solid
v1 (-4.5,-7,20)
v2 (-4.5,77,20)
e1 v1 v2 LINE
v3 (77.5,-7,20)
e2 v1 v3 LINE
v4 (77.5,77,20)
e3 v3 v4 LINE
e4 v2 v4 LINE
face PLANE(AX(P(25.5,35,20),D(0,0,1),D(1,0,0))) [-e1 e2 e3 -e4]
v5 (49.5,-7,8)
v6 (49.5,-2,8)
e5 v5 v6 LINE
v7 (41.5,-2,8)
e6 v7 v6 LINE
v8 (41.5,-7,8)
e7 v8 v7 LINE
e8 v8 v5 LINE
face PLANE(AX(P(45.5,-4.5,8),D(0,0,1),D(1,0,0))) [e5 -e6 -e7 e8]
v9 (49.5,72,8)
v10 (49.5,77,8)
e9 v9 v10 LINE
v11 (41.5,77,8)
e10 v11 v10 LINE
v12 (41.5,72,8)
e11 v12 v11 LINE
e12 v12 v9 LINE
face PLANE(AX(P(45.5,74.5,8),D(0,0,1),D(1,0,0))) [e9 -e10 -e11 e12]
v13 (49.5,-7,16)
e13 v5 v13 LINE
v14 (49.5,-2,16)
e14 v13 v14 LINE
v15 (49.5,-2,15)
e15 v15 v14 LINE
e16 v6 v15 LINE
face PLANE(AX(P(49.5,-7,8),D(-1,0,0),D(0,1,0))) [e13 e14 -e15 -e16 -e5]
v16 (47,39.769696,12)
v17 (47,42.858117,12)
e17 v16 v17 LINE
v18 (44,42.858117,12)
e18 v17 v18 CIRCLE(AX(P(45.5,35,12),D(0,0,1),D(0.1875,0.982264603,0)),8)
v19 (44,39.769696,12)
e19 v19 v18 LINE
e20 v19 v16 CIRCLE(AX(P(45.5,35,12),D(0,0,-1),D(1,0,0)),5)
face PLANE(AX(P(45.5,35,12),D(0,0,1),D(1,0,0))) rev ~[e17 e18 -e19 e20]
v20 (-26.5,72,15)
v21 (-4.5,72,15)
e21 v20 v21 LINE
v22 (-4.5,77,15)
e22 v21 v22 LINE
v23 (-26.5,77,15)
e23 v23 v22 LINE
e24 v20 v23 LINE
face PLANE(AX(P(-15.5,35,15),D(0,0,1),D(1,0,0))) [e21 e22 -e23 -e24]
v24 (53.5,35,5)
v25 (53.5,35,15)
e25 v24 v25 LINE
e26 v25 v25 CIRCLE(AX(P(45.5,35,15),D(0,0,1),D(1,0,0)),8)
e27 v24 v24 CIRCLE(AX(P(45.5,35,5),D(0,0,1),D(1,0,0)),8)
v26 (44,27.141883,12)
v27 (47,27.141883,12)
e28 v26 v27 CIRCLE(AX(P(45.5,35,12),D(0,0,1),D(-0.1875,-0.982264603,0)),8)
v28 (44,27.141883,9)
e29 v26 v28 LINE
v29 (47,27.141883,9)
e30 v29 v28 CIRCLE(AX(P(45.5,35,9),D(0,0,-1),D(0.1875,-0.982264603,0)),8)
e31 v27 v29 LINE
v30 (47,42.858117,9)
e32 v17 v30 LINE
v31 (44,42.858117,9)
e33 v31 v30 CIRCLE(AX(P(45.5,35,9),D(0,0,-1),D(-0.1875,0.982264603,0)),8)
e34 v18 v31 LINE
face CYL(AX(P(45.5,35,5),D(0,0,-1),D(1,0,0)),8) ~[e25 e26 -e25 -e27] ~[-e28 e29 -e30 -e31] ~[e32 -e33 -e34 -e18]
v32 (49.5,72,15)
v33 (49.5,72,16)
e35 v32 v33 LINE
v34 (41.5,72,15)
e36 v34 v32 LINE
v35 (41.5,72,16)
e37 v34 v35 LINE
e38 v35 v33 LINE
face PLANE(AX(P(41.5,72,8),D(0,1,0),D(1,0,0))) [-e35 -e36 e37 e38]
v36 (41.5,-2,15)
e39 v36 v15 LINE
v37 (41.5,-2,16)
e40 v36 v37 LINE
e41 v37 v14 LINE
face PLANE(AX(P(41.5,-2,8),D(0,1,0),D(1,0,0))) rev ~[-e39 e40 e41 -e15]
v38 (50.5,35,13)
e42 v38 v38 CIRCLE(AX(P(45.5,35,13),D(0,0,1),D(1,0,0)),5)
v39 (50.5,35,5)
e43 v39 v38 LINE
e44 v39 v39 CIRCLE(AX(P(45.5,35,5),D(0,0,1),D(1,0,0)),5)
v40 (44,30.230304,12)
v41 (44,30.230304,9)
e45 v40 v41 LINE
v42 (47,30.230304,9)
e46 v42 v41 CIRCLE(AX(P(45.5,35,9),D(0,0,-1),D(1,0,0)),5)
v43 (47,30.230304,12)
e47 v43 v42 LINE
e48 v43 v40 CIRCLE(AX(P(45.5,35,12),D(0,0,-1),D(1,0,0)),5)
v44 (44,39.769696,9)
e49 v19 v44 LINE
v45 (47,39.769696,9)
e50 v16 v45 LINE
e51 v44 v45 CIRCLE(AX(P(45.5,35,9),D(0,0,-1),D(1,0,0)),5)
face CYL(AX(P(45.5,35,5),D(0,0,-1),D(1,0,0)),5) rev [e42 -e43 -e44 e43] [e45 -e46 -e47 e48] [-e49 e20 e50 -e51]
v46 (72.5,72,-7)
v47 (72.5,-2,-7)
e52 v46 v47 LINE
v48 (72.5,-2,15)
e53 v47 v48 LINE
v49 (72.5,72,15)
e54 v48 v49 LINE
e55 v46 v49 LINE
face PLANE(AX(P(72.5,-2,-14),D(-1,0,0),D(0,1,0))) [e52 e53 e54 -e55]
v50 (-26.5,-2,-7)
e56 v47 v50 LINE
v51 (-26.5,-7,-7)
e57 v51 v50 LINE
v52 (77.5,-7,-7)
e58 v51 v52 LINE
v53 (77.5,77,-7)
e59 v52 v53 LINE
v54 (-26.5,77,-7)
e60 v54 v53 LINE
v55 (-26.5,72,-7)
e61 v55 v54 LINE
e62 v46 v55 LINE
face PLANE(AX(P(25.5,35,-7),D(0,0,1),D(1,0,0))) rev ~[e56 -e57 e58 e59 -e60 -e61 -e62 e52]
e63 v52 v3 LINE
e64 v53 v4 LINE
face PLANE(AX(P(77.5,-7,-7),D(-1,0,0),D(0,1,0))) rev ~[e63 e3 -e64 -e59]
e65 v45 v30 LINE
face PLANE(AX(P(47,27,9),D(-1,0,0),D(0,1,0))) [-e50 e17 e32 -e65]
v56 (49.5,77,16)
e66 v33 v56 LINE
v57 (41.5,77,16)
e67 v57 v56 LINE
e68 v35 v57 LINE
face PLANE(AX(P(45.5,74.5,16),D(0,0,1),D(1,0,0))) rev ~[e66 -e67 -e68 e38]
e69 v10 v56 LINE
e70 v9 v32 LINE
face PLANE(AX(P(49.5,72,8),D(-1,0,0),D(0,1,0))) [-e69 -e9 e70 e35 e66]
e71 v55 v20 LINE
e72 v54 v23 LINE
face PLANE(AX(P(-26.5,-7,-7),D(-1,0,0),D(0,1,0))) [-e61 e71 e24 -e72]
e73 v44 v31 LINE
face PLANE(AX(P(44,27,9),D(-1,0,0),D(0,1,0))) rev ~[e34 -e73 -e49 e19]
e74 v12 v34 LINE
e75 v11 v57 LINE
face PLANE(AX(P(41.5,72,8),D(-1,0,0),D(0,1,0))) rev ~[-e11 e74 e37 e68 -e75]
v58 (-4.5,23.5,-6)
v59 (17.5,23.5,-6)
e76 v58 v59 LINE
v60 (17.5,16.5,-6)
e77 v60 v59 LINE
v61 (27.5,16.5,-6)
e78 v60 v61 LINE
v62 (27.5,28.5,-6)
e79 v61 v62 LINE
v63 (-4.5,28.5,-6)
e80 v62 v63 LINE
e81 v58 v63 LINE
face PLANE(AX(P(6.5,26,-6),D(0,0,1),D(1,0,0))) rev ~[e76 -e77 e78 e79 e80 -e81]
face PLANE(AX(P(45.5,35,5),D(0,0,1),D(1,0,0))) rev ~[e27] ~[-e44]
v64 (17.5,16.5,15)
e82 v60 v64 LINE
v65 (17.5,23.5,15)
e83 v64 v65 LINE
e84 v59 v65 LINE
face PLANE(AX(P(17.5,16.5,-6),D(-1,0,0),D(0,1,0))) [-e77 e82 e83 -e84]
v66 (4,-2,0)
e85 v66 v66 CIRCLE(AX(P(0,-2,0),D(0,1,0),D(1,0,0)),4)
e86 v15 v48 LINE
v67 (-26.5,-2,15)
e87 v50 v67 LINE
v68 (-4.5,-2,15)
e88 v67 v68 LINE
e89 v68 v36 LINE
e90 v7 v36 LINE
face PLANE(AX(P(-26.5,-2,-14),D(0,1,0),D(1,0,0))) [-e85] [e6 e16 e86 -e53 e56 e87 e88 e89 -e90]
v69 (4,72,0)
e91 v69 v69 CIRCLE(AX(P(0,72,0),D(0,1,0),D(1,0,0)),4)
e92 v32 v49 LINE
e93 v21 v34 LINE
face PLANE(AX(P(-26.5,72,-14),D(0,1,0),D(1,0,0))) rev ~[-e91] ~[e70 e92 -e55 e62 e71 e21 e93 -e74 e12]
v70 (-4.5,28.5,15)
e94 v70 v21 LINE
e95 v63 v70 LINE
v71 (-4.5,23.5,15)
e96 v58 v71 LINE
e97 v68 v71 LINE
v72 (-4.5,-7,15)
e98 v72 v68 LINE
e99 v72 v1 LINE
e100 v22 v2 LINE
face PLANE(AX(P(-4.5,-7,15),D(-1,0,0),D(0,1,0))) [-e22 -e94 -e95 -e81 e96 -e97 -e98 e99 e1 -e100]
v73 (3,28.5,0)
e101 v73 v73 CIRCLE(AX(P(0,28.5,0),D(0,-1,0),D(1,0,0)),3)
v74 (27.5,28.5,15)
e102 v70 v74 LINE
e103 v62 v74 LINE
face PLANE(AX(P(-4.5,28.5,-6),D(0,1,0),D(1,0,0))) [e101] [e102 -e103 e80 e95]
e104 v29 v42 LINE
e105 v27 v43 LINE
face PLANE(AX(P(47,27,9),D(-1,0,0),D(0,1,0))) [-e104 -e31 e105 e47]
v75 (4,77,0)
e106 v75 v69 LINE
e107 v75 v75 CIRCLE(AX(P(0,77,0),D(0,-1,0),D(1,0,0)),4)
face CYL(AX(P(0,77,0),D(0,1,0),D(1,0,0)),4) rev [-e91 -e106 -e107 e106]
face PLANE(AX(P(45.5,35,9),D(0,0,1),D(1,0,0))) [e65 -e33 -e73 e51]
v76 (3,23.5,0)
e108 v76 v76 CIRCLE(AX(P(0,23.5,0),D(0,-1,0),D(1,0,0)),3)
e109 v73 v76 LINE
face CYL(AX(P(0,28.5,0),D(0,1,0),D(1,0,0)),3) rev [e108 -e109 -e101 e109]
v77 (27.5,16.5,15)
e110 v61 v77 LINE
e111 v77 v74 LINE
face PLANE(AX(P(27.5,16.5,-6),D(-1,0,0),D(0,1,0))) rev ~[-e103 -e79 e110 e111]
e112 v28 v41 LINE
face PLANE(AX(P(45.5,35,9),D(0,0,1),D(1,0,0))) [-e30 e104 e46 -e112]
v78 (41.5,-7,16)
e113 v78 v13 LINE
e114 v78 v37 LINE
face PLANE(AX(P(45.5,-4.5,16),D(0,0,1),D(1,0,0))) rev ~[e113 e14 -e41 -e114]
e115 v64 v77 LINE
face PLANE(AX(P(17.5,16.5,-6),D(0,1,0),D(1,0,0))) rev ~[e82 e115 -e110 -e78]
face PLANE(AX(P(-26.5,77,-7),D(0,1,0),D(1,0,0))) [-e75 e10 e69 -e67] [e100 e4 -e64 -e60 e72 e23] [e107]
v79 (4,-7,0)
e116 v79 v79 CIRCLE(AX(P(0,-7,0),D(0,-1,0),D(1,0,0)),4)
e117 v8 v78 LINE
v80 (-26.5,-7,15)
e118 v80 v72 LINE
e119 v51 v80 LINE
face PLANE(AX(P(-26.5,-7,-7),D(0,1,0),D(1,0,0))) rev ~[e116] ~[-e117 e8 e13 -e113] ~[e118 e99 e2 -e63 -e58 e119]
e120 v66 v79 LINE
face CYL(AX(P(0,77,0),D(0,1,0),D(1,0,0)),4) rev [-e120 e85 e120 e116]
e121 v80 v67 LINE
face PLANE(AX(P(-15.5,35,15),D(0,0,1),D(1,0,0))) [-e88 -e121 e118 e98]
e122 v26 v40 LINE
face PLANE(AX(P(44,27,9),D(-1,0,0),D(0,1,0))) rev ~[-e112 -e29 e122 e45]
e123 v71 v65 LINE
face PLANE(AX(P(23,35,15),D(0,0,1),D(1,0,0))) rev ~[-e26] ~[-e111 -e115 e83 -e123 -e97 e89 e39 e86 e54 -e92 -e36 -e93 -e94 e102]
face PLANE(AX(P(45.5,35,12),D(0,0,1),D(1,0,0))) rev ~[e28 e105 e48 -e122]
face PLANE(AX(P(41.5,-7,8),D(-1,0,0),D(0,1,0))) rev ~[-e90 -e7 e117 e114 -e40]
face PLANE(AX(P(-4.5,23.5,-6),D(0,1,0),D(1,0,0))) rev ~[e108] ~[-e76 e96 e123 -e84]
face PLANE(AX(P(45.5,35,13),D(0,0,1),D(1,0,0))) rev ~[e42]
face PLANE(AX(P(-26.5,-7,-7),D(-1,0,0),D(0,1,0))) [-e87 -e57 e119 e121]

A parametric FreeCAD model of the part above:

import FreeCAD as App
import Part
import Sketcher
from FreeCAD import Vector


def add_polygon(sketch, points):
    """Adds a closed chain of lines whose ends are joined by coincident constraints."""
    first, n = sketch.GeometryCount, len(points)
    for a, b in zip(points, points[1:] + points[:1]):
        sketch.addGeometry(Part.LineSegment(App.Vector(*a, 0), App.Vector(*b, 0)), False)
    for i in range(n):
        sketch.addConstraint(Sketcher.Constraint("Coincident", first + i, 2, first + (i + 1) % n, 1))

doc = App.newDocument("Part")
params = doc.addObject("Spreadsheet::Sheet", "Params")
for row, (alias, value) in enumerate([
    ("sketch1_diameter", "6 mm"),
    ("pad1_length", "5 mm"),
    ("sketch2_width", "22 mm"),
    ("sketch2_height", "5 mm"),
    ("pad2_length", "21 mm"),
    ("sketch3_width", "10 mm"),
    ("sketch3_height", "12 mm"),
    ("pad3_length", "21 mm"),
    ("sketch4_diameter", "10 mm"),
    ("pad4_length", "8 mm"),
    ("sketch5_width", "3 mm"),
    ("sketch5_height", "16 mm"),
    ("pad5_length", "3 mm"),
    ("sketch6_diameter", "16 mm"),
    ("pad6_length", "10 mm"),
    ("sketch7_diameter", "8 mm"),
    ("pad7_length", "84 mm"),
    ("sketch8_width", "8 mm"),
    ("sketch8_height", "5 mm"),
    ("pad8_length", "8 mm"),
    ("sketch9_width", "8 mm"),
    ("sketch9_height", "5 mm"),
    ("pad9_length", "8 mm"),
    ("sketch10_width", "22 mm"),
    ("sketch10_height", "84 mm"),
    ("pad10_length", "5 mm"),
    ("sketch11_width", "99 mm"),
    ("sketch11_height", "74 mm"),
    ("pad11_length", "29 mm"),
    ("sketch12_width", "104 mm"),
    ("sketch12_height", "84 mm"),
    ("pad12_length", "27 mm"),
], start=1):
    params.set(f"A{row}", alias)
    params.set(f"B{row}", "=" + value)
    params.setAlias(f"B{row}", alias)

body = doc.addObject("PartDesign::Body", "Body")

sketch1 = body.newObject("Sketcher::SketchObject", "Sketch")
sketch1.AttachmentSupport = (doc.getObject("XZ_Plane"), [""])
sketch1.MapMode = "FlatFace"
sketch1.AttachmentOffset = App.Placement(Vector(0, 0, -28.5), App.Rotation())
sketch1.addGeometry(Part.Circle(Vector(19.5, 14, 0), Vector(0, 0, 1), 3), False)
sketch1.addConstraint([
    Sketcher.Constraint("Diameter", 0, 6.0),
    Sketcher.Constraint("DistanceY", -1, 1, 0, 3, 14.0),
    Sketcher.Constraint("DistanceX", -1, 1, 0, 3, 19.5),
])
sketch1.setExpression("Constraints[0]", "Params.sketch1_diameter")
pad1 = body.newObject("PartDesign::Pad", "Pad")
pad1.Profile = sketch1
pad1.setExpression("Length", "Params.pad1_length")
body2 = doc.addObject("PartDesign::Body", "Body001")

sketch2 = body2.newObject("Sketcher::SketchObject", "Sketch001")
sketch2.AttachmentSupport = (doc.getObject("XY_Plane001"), [""])
sketch2.MapMode = "FlatFace"
sketch2.AttachmentOffset = App.Placement(Vector(0, 0, 8), App.Rotation())
add_polygon(sketch2, [(15, 28), (15, 24), (37, 24), (37, 28)])
sketch2.addConstraint([
    Sketcher.Constraint("Vertical", 0),
    Sketcher.Constraint("Horizontal", 1),
    Sketcher.Constraint("Vertical", 2),
    Sketcher.Constraint("Horizontal", 3),
    Sketcher.Constraint("DistanceX", 1, 1, 1, 2, 22.0),
    Sketcher.Constraint("DistanceY", 0, 2, 0, 1, 5.0),
    Sketcher.Constraint("DistanceX", -1, 1, 0, 2, 15.0),
    Sketcher.Constraint("DistanceY", -1, 1, 0, 2, 23.5),
])
sketch2.setExpression("Constraints[8]", "Params.sketch2_width")
sketch2.setExpression("Constraints[9]", "Params.sketch2_height")
pad2 = body2.newObject("PartDesign::Pad", "Pad001")
pad2.Profile = sketch2
pad2.setExpression("Length", "Params.pad2_length")
body3 = doc.addObject("PartDesign::Body", "Body002")

sketch3 = body3.newObject("Sketcher::SketchObject", "Sketch002")
sketch3.AttachmentSupport = (doc.getObject("XY_Plane002"), [""])
sketch3.MapMode = "FlatFace"
sketch3.AttachmentOffset = App.Placement(Vector(0, 0, 8), App.Rotation())
add_polygon(sketch3, [(37, 28), (37, 16), (47, 16), (47, 28)])
sketch3.addConstraint([
    Sketcher.Constraint("Vertical", 0),
    Sketcher.Constraint("Horizontal", 1),
    Sketcher.Constraint("Vertical", 2),
    Sketcher.Constraint("Horizontal", 3),
    Sketcher.Constraint("DistanceX", 1, 1, 1, 2, 10.0),
    Sketcher.Constraint("DistanceY", 0, 2, 0, 1, 12.0),
    Sketcher.Constraint("DistanceX", -1, 1, 0, 2, 37.0),
    Sketcher.Constraint("DistanceY", -1, 1, 0, 2, 16.5),
])
sketch3.setExpression("Constraints[8]", "Params.sketch3_width")
sketch3.setExpression("Constraints[9]", "Params.sketch3_height")
pad3 = body3.newObject("PartDesign::Pad", "Pad002")
pad3.Profile = sketch3
pad3.setExpression("Length", "Params.pad3_length")
doc.recompute()

boolean = body3.newObject("PartDesign::Boolean", "Boolean")
boolean.Type = "Fuse"
boolean.addObjects([body2])
doc.recompute()

boolean2 = body3.newObject("PartDesign::Boolean", "Boolean001")
boolean2.Type = "Cut"
boolean2.addObjects([body])
body4 = doc.addObject("PartDesign::Body", "Body003")

sketch4 = body4.newObject("Sketcher::SketchObject", "Sketch003")
sketch4.AttachmentSupport = (doc.getObject("XY_Plane003"), [""])
sketch4.MapMode = "FlatFace"
sketch4.AttachmentOffset = App.Placement(Vector(0, 0, 19), App.Rotation())
sketch4.addGeometry(Part.Circle(Vector(65, 35, 0), Vector(0, 0, 1), 5), False)
sketch4.addConstraint([
    Sketcher.Constraint("Diameter", 0, 10.0),
    Sketcher.Constraint("DistanceX", -1, 1, 0, 3, 65.0),
    Sketcher.Constraint("DistanceY", -1, 1, 0, 3, 35.0),
])
sketch4.setExpression("Constraints[0]", "Params.sketch4_diameter")
pad4 = body4.newObject("PartDesign::Pad", "Pad003")
pad4.Profile = sketch4
pad4.setExpression("Length", "Params.pad4_length")
body5 = doc.addObject("PartDesign::Body", "Body004")

sketch5 = body5.newObject("Sketcher::SketchObject", "Sketch004")
sketch5.AttachmentSupport = (doc.getObject("XY_Plane004"), [""])
sketch5.MapMode = "FlatFace"
sketch5.AttachmentOffset = App.Placement(Vector(0, 0, 23), App.Rotation())
add_polygon(sketch5, [(63.5, 43), (63.5, 27), (66.5, 27), (66.5, 43)])
sketch5.addConstraint([
    Sketcher.Constraint("Vertical", 0),
    Sketcher.Constraint("Horizontal", 1),
    Sketcher.Constraint("Vertical", 2),
    Sketcher.Constraint("Horizontal", 3),
    Sketcher.Constraint("DistanceX", 1, 1, 1, 2, 3.0),
    Sketcher.Constraint("DistanceY", 0, 2, 0, 1, 16.0),
    Sketcher.Constraint("DistanceY", -1, 1, 0, 2, 27.0),
    Sketcher.Constraint("DistanceX", -1, 1, 0, 2, 63.5),
])
sketch5.setExpression("Constraints[8]", "Params.sketch5_width")
sketch5.setExpression("Constraints[9]", "Params.sketch5_height")
pad5 = body5.newObject("PartDesign::Pad", "Pad004")
pad5.Profile = sketch5
pad5.setExpression("Length", "Params.pad5_length")
doc.recompute()

boolean3 = body5.newObject("PartDesign::Boolean", "Boolean002")
boolean3.Type = "Fuse"
boolean3.addObjects([body4])
body6 = doc.addObject("PartDesign::Body", "Body005")

sketch6 = body6.newObject("Sketcher::SketchObject", "Sketch005")
sketch6.AttachmentSupport = (doc.getObject("XY_Plane005"), [""])
sketch6.MapMode = "FlatFace"
sketch6.AttachmentOffset = App.Placement(Vector(0, 0, 19), App.Rotation())
sketch6.addGeometry(Part.Circle(Vector(65, 35, 0), Vector(0, 0, 1), 8), False)
sketch6.addConstraint([
    Sketcher.Constraint("Diameter", 0, 16.0),
    Sketcher.Constraint("DistanceX", -1, 1, 0, 3, 65.0),
    Sketcher.Constraint("DistanceY", -1, 1, 0, 3, 35.0),
])
sketch6.setExpression("Constraints[0]", "Params.sketch6_diameter")
pad6 = body6.newObject("PartDesign::Pad", "Pad005")
pad6.Profile = sketch6
pad6.setExpression("Length", "Params.pad6_length")
doc.recompute()

boolean4 = body6.newObject("PartDesign::Boolean", "Boolean003")
boolean4.Type = "Cut"
boolean4.addObjects([body5])
body7 = doc.addObject("PartDesign::Body", "Body006")

sketch7 = body7.newObject("Sketcher::SketchObject", "Sketch006")
sketch7.AttachmentSupport = (doc.getObject("XZ_Plane006"), [""])
sketch7.MapMode = "FlatFace"
sketch7.AttachmentOffset = App.Placement(Vector(0, 0, -77), App.Rotation())
sketch7.addGeometry(Part.Circle(Vector(19.5, 14, 0), Vector(0, 0, 1), 4), False)
sketch7.addConstraint([
    Sketcher.Constraint("Diameter", 0, 8.0),
    Sketcher.Constraint("DistanceY", -1, 1, 0, 3, 14.0),
    Sketcher.Constraint("DistanceX", -1, 1, 0, 3, 19.5),
])
sketch7.setExpression("Constraints[0]", "Params.sketch7_diameter")
pad7 = body7.newObject("PartDesign::Pad", "Pad006")
pad7.Profile = sketch7
pad7.setExpression("Length", "Params.pad7_length")
body8 = doc.addObject("PartDesign::Body", "Body007")

sketch8 = body8.newObject("Sketcher::SketchObject", "Sketch007")
sketch8.AttachmentSupport = (doc.getObject("XY_Plane007"), [""])
sketch8.MapMode = "FlatFace"
sketch8.AttachmentOffset = App.Placement(Vector(0, 0, 22), App.Rotation())
add_polygon(sketch8, [(61, 77), (61, 72), (69, 72), (69, 77)])
sketch8.addConstraint([
    Sketcher.Constraint("Vertical", 0),
    Sketcher.Constraint("Horizontal", 1),
    Sketcher.Constraint("Vertical", 2),
    Sketcher.Constraint("Horizontal", 3),
    Sketcher.Constraint("DistanceX", 1, 1, 1, 2, 8.0),
    Sketcher.Constraint("DistanceY", 0, 2, 0, 1, 5.0),
    Sketcher.Constraint("DistanceX", -1, 1, 0, 2, 61.0),
    Sketcher.Constraint("DistanceY", -1, 1, 0, 2, 72.0),
])
sketch8.setExpression("Constraints[8]", "Params.sketch8_width")
sketch8.setExpression("Constraints[9]", "Params.sketch8_height")
pad8 = body8.newObject("PartDesign::Pad", "Pad007")
pad8.Profile = sketch8
pad8.setExpression("Length", "Params.pad8_length")
body9 = doc.addObject("PartDesign::Body", "Body008")

sketch9 = body9.newObject("Sketcher::SketchObject", "Sketch008")
sketch9.AttachmentSupport = (doc.getObject("XY_Plane008"), [""])
sketch9.MapMode = "FlatFace"
sketch9.AttachmentOffset = App.Placement(Vector(0, 0, 22), App.Rotation())
add_polygon(sketch9, [(61, -2), (61, -7), (69, -7), (69, -2)])
sketch9.addConstraint([
    Sketcher.Constraint("Vertical", 0),
    Sketcher.Constraint("Horizontal", 1),
    Sketcher.Constraint("Vertical", 2),
    Sketcher.Constraint("Horizontal", 3),
    Sketcher.Constraint("DistanceX", 1, 1, 1, 2, 8.0),
    Sketcher.Constraint("DistanceY", 0, 2, 0, 1, 5.0),
    Sketcher.Constraint("DistanceX", -1, 1, 0, 2, 61.0),
    Sketcher.Constraint("DistanceY", 0, 2, -1, 1, 7.0),
])
sketch9.setExpression("Constraints[8]", "Params.sketch9_width")
sketch9.setExpression("Constraints[9]", "Params.sketch9_height")
pad9 = body9.newObject("PartDesign::Pad", "Pad008")
pad9.Profile = sketch9
pad9.setExpression("Length", "Params.pad9_length")
body10 = doc.addObject("PartDesign::Body", "Body009")

sketch10 = body10.newObject("Sketcher::SketchObject", "Sketch009")
sketch10.AttachmentSupport = (doc.getObject("XY_Plane009"), [""])
sketch10.MapMode = "FlatFace"
sketch10.AttachmentOffset = App.Placement(Vector(0, 0, 29), App.Rotation())
add_polygon(sketch10, [(-7, 77), (-7, -7), (15, -7), (15, 77)])
sketch10.addConstraint([
    Sketcher.Constraint("Vertical", 0),
    Sketcher.Constraint("Horizontal", 1),
    Sketcher.Constraint("Vertical", 2),
    Sketcher.Constraint("Horizontal", 3),
    Sketcher.Constraint("DistanceX", 1, 1, 1, 2, 22.0),
    Sketcher.Constraint("DistanceY", 0, 2, 0, 1, 84.0),
    Sketcher.Constraint("DistanceX", 0, 2, -1, 1, 7.0),
    Sketcher.Constraint("DistanceY", 0, 2, -1, 1, 7.0),
])
sketch10.setExpression("Constraints[8]", "Params.sketch10_width")
sketch10.setExpression("Constraints[9]", "Params.sketch10_height")
pad10 = body10.newObject("PartDesign::Pad", "Pad009")
pad10.Profile = sketch10
pad10.setExpression("Length", "Params.pad10_length")
body11 = doc.addObject("PartDesign::Body", "Body010")

sketch11 = body11.newObject("Sketcher::SketchObject", "Sketch010")
sketch11.AttachmentSupport = (doc.getObject("XY_Plane010"), [""])
sketch11.MapMode = "FlatFace"
add_polygon(sketch11, [(-7, 72), (-7, -2), (92, -2), (92, 72)])
sketch11.addConstraint([
    Sketcher.Constraint("Vertical", 0),
    Sketcher.Constraint("Horizontal", 1),
    Sketcher.Constraint("Vertical", 2),
    Sketcher.Constraint("Horizontal", 3),
    Sketcher.Constraint("DistanceX", 1, 1, 1, 2, 99.0),
    Sketcher.Constraint("DistanceY", 0, 2, 0, 1, 74.0),
    Sketcher.Constraint("DistanceX", 0, 2, -1, 1, 7.0),
    Sketcher.Constraint("DistanceY", 0, 2, -1, 1, 2.0),
])
sketch11.setExpression("Constraints[8]", "Params.sketch11_width")
sketch11.setExpression("Constraints[9]", "Params.sketch11_height")
pad11 = body11.newObject("PartDesign::Pad", "Pad010")
pad11.Profile = sketch11
pad11.setExpression("Length", "Params.pad11_length")
doc.recompute()

boolean5 = body11.newObject("PartDesign::Boolean", "Boolean004")
boolean5.Type = "Fuse"
boolean5.addObjects([body7])
doc.recompute()

boolean6 = body11.newObject("PartDesign::Boolean", "Boolean005")
boolean6.Type = "Fuse"
boolean6.addObjects([body8])
doc.recompute()

boolean7 = body11.newObject("PartDesign::Boolean", "Boolean006")
boolean7.Type = "Fuse"
boolean7.addObjects([body9])
doc.recompute()

boolean8 = body11.newObject("PartDesign::Boolean", "Boolean007")
boolean8.Type = "Fuse"
boolean8.addObjects([body10])
body12 = doc.addObject("PartDesign::Body", "Body011")

sketch12 = body12.newObject("Sketcher::SketchObject", "Sketch011")
sketch12.AttachmentSupport = (doc.getObject("XY_Plane011"), [""])
sketch12.MapMode = "FlatFace"
sketch12.AttachmentOffset = App.Placement(Vector(0, 0, 7), App.Rotation())
add_polygon(sketch12, [(-7, 77), (-7, -7), (97, -7), (97, 77)])
sketch12.addConstraint([
    Sketcher.Constraint("Vertical", 0),
    Sketcher.Constraint("Horizontal", 1),
    Sketcher.Constraint("Vertical", 2),
    Sketcher.Constraint("Horizontal", 3),
    Sketcher.Constraint("DistanceX", 1, 1, 1, 2, 104.0),
    Sketcher.Constraint("DistanceY", 0, 2, 0, 1, 84.0),
    Sketcher.Constraint("DistanceX", 0, 2, -1, 1, 7.0),
    Sketcher.Constraint("DistanceY", 0, 2, -1, 1, 7.0),
])
sketch12.setExpression("Constraints[8]", "Params.sketch12_width")
sketch12.setExpression("Constraints[9]", "Params.sketch12_height")
pad12 = body12.newObject("PartDesign::Pad", "Pad011")
pad12.Profile = sketch12
pad12.setExpression("Length", "Params.pad12_length")
doc.recompute()

boolean9 = body12.newObject("PartDesign::Boolean", "Boolean008")
boolean9.Type = "Cut"
boolean9.addObjects([body11])
doc.recompute()

boolean10 = body12.newObject("PartDesign::Boolean", "Boolean009")
boolean10.Type = "Fuse"
boolean10.addObjects([body3])
doc.recompute()

boolean11 = body12.newObject("PartDesign::Boolean", "Boolean010")
boolean11.Type = "Fuse"
boolean11.addObjects([body6])
body13 = doc.addObject("PartDesign::Body", "Body012")
doc.recompute()

body12.Placement = App.Placement(Vector(-19.5, 0, -14), App.Rotation(Vector(0, 0, 1), 0))
boolean12 = body13.newObject("PartDesign::Boolean", "Boolean011")
boolean12.Type = "Fuse"
boolean12.addObjects([body12])

doc.recompute()
